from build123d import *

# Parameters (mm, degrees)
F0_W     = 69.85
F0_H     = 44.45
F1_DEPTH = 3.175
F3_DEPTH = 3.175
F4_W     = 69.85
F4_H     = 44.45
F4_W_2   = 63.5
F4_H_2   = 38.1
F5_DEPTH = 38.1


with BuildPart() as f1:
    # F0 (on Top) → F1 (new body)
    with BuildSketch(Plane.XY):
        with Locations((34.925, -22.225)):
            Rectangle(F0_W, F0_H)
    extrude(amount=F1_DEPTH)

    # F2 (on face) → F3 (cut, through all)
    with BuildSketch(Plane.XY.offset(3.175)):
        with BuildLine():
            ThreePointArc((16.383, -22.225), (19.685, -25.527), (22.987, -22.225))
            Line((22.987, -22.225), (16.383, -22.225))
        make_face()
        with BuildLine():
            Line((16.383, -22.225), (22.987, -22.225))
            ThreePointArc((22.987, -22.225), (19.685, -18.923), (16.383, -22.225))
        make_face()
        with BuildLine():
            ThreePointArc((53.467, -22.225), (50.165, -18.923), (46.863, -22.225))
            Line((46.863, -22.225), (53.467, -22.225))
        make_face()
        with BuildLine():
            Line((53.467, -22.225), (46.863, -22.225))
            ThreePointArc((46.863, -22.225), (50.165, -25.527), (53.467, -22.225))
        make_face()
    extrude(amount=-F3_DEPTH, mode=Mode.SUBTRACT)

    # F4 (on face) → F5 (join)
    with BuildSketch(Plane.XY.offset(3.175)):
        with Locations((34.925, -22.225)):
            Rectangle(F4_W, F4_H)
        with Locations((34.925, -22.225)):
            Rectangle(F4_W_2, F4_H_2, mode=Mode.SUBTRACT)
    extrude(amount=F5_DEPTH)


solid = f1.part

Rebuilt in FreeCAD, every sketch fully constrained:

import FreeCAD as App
import Part
import Sketcher

V = App.Vector
Q = App.Units.Quantity


def add_polygon(sketch, points):
    """Adds a closed chain of lines whose ends are joined by coincident constraints."""
    first, n = sketch.GeometryCount, len(points)
    for a, b in zip(points, points[1:] + points[:1]):
        sketch.addGeometry(Part.LineSegment(App.Vector(*a, 0), App.Vector(*b, 0)), False)
    for i in range(n):
        sketch.addConstraint(Sketcher.Constraint("Coincident", first + i, 2, first + (i + 1) % n, 1))

doc = App.newDocument("Part")
params = doc.addObject("Spreadsheet::Sheet", "Params")
for row, (alias, value) in enumerate([
    ("sketch1_width", "2.75 in"),
    ("sketch1_height", "1.75 in"),
    ("pad1_length", "0.125 in"),
    ("sketch2_diameter", "0.26 in"),
    ("sketch3_width", "2.5 in"),
    ("sketch3_height", "1.5 in"),
    ("sketch3_width2", "2.75 in"),
    ("sketch3_height2", "1.75 in"),
    ("pad2_length", "1.5 in"),
], start=1):
    params.set(f"A{row}", alias)
    params.set(f"B{row}", "=" + value)
    params.setAlias(f"B{row}", alias)

body = doc.addObject("PartDesign::Body", "Body")

sketch1 = body.newObject("Sketcher::SketchObject", "Sketch")
sketch1.AttachmentSupport = (doc.getObject("XY_Plane"), [""])
sketch1.MapMode = "FlatFace"
add_polygon(sketch1, [(0, 0), (0, -44), (70, -44), (70, 0)])
sketch1.addConstraint([
    Sketcher.Constraint("Vertical", 0),
    Sketcher.Constraint("Horizontal", 1),
    Sketcher.Constraint("Vertical", 2),
    Sketcher.Constraint("Horizontal", 3),
    Sketcher.Constraint("Coincident", 3, 2, -1, 1),
    Sketcher.Constraint("DistanceX", 1, 1, 1, 2, Q("2.75 in")),
    Sketcher.Constraint("DistanceY", 0, 2, 0, 1, Q("1.75 in")),
])
sketch1.setExpression("Constraints[9]", "Params.sketch1_width")
sketch1.setExpression("Constraints[10]", "Params.sketch1_height")
pad1 = body.newObject("PartDesign::Pad", "Pad")
pad1.Profile = sketch1
pad1.setExpression("Length", "Params.pad1_length")

sketch2 = body.newObject("Sketcher::SketchObject", "Sketch001")
sketch2.AttachmentSupport = (doc.getObject("XY_Plane"), [""])
sketch2.MapMode = "FlatFace"
sketch2.AttachmentOffset = App.Placement(V(0, 0, 0.125 * 25.4), App.Rotation())
sketch2.addGeometry([
    Part.Circle(V(19.7, -22.2, 0), V(0, 0, 1), 3.3),
    Part.Circle(V(50.2, -22.2, 0), V(0, 0, 1), 3.3),
], False)
sketch2.addConstraint([
    Sketcher.Constraint("Equal", 0, 1),
    Sketcher.Constraint("Horizontal", 0, 3, 1, 3),
    Sketcher.Constraint("Diameter", 0, Q("0.26 in")),
    Sketcher.Constraint("DistanceX", 0, 3, 1, 3, Q("1.2 in")),
    Sketcher.Constraint("DistanceX", -1, 1, 0, 3, Q("0.775 in")),
    Sketcher.Constraint("DistanceY", 0, 3, -1, 1, Q("0.875 in")),
])
sketch2.setExpression("Constraints[2]", "Params.sketch2_diameter")
pocket1 = body.newObject("PartDesign::Pocket", "Pocket")
pocket1.Profile = sketch2
pocket1.Type = "ThroughAll"

sketch3 = body.newObject("Sketcher::SketchObject", "Sketch002")
sketch3.AttachmentSupport = (doc.getObject("XY_Plane"), [""])
sketch3.MapMode = "FlatFace"
sketch3.AttachmentOffset = App.Placement(V(0, 0, 0.125 * 25.4), App.Rotation())
add_polygon(sketch3, [(0, 0), (0, -44), (70, -44), (70, 0)])
add_polygon(sketch3, [(67, -41), (3, -41), (3, -3), (67, -3)])
sketch3.addConstraint([
    Sketcher.Constraint("Vertical", 0),
    Sketcher.Constraint("Horizontal", 1),
    Sketcher.Constraint("Vertical", 2),
    Sketcher.Constraint("Horizontal", 3),
    Sketcher.Constraint("Horizontal", 4),
    Sketcher.Constraint("Vertical", 5),
    Sketcher.Constraint("Horizontal", 6),
    Sketcher.Constraint("Vertical", 7),
    Sketcher.Constraint("Coincident", 3, 2, -1, 1),
    Sketcher.Constraint("DistanceX", 4, 2, 4, 1, Q("2.5 in")),
    Sketcher.Constraint("DistanceY", 5, 1, 5, 2, Q("1.5 in")),
    Sketcher.Constraint("DistanceX", 1, 1, 1, 2, Q("2.75 in")),
    Sketcher.Constraint("DistanceY", 0, 2, 0, 1, Q("1.75 in")),
    Sketcher.Constraint("DistanceX", -1, 1, 4, 2, Q("0.125 in")),
    Sketcher.Constraint("DistanceY", 4, 2, -1, 1, Q("1.625 in")),
])
sketch3.setExpression("Constraints[17]", "Params.sketch3_width")
sketch3.setExpression("Constraints[18]", "Params.sketch3_height")
sketch3.setExpression("Constraints[19]", "Params.sketch3_width2")
sketch3.setExpression("Constraints[20]", "Params.sketch3_height2")
pad2 = body.newObject("PartDesign::Pad", "Pad001")
pad2.Profile = sketch3
pad2.setExpression("Length", "Params.pad2_length")

doc.recompute()
